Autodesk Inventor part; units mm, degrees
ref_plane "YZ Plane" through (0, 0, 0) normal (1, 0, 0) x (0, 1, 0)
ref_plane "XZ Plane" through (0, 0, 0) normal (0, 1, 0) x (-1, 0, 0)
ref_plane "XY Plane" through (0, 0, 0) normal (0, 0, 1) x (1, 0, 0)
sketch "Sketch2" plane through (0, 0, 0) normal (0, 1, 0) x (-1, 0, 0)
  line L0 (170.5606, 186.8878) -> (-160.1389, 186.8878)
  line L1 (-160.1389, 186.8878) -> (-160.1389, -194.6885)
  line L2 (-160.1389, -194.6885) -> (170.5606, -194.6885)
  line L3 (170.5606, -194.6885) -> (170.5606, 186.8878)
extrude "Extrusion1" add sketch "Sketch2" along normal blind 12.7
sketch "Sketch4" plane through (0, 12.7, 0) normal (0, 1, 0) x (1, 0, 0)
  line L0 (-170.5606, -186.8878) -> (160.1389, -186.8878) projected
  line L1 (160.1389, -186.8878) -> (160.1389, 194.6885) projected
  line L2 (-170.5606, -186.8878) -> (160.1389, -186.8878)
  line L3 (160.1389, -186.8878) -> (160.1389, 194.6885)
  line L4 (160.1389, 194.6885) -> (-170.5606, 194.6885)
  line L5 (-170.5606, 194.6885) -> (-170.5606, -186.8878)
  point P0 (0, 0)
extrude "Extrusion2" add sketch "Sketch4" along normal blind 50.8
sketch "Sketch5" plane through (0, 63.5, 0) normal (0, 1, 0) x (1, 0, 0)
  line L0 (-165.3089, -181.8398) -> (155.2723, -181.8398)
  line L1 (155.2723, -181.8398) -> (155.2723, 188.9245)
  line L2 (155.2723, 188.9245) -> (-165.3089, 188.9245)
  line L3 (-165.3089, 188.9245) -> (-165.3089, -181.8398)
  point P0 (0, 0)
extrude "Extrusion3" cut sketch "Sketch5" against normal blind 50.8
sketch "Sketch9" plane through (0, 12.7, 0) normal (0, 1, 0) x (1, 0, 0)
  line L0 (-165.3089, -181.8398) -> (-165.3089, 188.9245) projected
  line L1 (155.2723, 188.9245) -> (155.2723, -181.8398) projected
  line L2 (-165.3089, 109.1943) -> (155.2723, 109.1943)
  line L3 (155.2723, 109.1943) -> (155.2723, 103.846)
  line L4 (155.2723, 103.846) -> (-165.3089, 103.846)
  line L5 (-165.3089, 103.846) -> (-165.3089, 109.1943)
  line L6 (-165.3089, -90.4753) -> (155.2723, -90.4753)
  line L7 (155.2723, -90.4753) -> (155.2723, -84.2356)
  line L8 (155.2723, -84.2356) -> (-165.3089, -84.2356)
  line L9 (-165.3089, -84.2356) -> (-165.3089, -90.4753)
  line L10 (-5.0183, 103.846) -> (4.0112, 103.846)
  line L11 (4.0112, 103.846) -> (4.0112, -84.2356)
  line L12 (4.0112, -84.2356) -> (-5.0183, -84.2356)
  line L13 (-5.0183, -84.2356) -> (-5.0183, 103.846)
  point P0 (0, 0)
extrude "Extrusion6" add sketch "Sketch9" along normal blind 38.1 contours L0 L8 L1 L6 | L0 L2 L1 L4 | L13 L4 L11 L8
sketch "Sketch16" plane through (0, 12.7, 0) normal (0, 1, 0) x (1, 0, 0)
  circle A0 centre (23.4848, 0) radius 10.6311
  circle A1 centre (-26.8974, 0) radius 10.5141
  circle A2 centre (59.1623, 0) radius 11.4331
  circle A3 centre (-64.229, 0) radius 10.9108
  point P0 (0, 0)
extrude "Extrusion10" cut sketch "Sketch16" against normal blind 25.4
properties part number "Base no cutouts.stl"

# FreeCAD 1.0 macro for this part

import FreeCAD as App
import Part
import Sketcher
from FreeCAD import Vector
Q = App.Units.Quantity


def add_polygon(sketch, points):
    """Adds a closed chain of lines whose ends are joined by coincident constraints."""
    first, n = sketch.GeometryCount, len(points)
    for a, b in zip(points, points[1:] + points[:1]):
        sketch.addGeometry(Part.LineSegment(App.Vector(*a, 0), App.Vector(*b, 0)), False)
    for i in range(n):
        sketch.addConstraint(Sketcher.Constraint("Coincident", first + i, 2, first + (i + 1) % n, 1))

doc = App.newDocument("Part")
params = doc.addObject("Spreadsheet::Sheet", "Params")
for row, (alias, value) in enumerate([
    ("pad1_length", "0.5 in"),
    ("pad2_length", "2 in"),
    ("pocket1_length", "2 in"),
    ("pad3_length", "1.5 in"),
    ("pocket2_length", "1 in"),
], start=1):
    params.set(f"A{row}", alias)
    params.set(f"B{row}", "=" + value)
    params.setAlias(f"B{row}", alias)

body = doc.addObject("PartDesign::Body", "Body")

sketch1 = doc.addObject("Sketcher::SketchObject", "Sketch")
body.addObject(sketch1)
sketch1.AttachmentSupport = (doc.XZ_Plane, [""])
sketch1.MapMode = "FlatFace"
add_polygon(sketch1, [(-170.5606, -194.6885), (-170.5606, 186.8878), (160.1389, 186.8878), (160.1389, -194.6885)])
sketch1.addConstraint(Sketcher.Constraint("Vertical", 0))
sketch1.addConstraint(Sketcher.Constraint("Horizontal", 1))
sketch1.addConstraint(Sketcher.Constraint("Vertical", 2))
sketch1.addConstraint(Sketcher.Constraint("Horizontal", 3))
sketch1.addConstraint(Sketcher.Constraint("DistanceY", 0, 1, 0, 2, Q("15.0227 in")))
sketch1.addConstraint(Sketcher.Constraint("DistanceX", 1, 1, 1, 2, 330.6995))
sketch1.addConstraint(Sketcher.Constraint("DistanceY", 2, 2, -1, 1, Q("7.6649 in")))
sketch1.addConstraint(Sketcher.Constraint("DistanceX", 0, 2, -1, 1, 170.5606))
pad1 = doc.addObject("PartDesign::Pad", "Pad")
body.addObject(pad1)
pad1.Profile = sketch1
pad1.setExpression("Length", "Params.pad1_length")
pad1.Reversed = True

sketch2 = doc.addObject("Sketcher::SketchObject", "Sketch001")
body.addObject(sketch2)
sketch2.AttachmentSupport = (doc.XZ_Plane, [""])
sketch2.MapMode = "FlatFace"
sketch2.AttachmentOffset = App.Placement(Vector(0, 0, -0.5 * 25.4), App.Rotation())
add_polygon(sketch2, [(-170.5606, -194.6885), (-170.5606, 186.8878), (160.1389, 186.8878), (160.1389, -194.6885)])
sketch2.addConstraint(Sketcher.Constraint("Vertical", 0))
sketch2.addConstraint(Sketcher.Constraint("Horizontal", 1))
sketch2.addConstraint(Sketcher.Constraint("Vertical", 2))
sketch2.addConstraint(Sketcher.Constraint("Horizontal", 3))
sketch2.addConstraint(Sketcher.Constraint("DistanceY", 0, 1, 0, 2, Q("15.0227 in")))
sketch2.addConstraint(Sketcher.Constraint("DistanceX", 1, 1, 1, 2, 330.6995))
sketch2.addConstraint(Sketcher.Constraint("DistanceY", 2, 2, -1, 1, Q("7.6649 in")))
sketch2.addConstraint(Sketcher.Constraint("DistanceX", 0, 2, -1, 1, 170.5606))
pad2 = doc.addObject("PartDesign::Pad", "Pad001")
body.addObject(pad2)
pad2.Profile = sketch2
pad2.setExpression("Length", "Params.pad2_length")
pad2.Reversed = True

sketch3 = doc.addObject("Sketcher::SketchObject", "Sketch002")
body.addObject(sketch3)
sketch3.AttachmentSupport = (doc.XZ_Plane, [""])
sketch3.MapMode = "FlatFace"
sketch3.AttachmentOffset = App.Placement(Vector(0, 0, -2.5 * 25.4), App.Rotation())
add_polygon(sketch3, [(-165.3089, -188.9245), (-165.3089, 181.8398), (155.2723, 181.8398), (155.2723, -188.9245)])
sketch3.addConstraint(Sketcher.Constraint("Vertical", 0))
sketch3.addConstraint(Sketcher.Constraint("Horizontal", 1))
sketch3.addConstraint(Sketcher.Constraint("Vertical", 2))
sketch3.addConstraint(Sketcher.Constraint("Horizontal", 3))
sketch3.addConstraint(Sketcher.Constraint("DistanceX", 1, 1, 1, 2, Q("12.6213 in")))
sketch3.addConstraint(Sketcher.Constraint("DistanceY", 0, 1, 0, 2, 370.7643))
sketch3.addConstraint(Sketcher.Constraint("DistanceX", 0, 2, -1, 1, 165.309))
sketch3.addConstraint(Sketcher.Constraint("DistanceY", -1, 1, 0, 2, 181.8398))
pocket1 = doc.addObject("PartDesign::Pocket", "Pocket")
body.addObject(pocket1)
pocket1.Profile = sketch3
pocket1.setExpression("Length", "Params.pocket1_length")
pocket1.Reversed = True

sketch4 = doc.addObject("Sketcher::SketchObject", "Sketch003")
body.addObject(sketch4)
sketch4.AttachmentSupport = (doc.XZ_Plane, [""])
sketch4.MapMode = "FlatFace"
sketch4.AttachmentOffset = App.Placement(Vector(0, 0, -0.5 * 25.4), App.Rotation())
add_polygon(sketch4, [(-165.3089, 84.2356), (-165.3089, 90.4753), (155.2723, 90.4753), (155.2723, 84.2356), (4.0112, 84.2356), (4.0112, -103.846), (155.2723, -103.846), (155.2723, -109.1943), (-165.3089, -109.1943), (-165.3089, -103.846), (-5.0183, -103.846), (-5.0183, 84.2356)])
sketch4.addConstraint(Sketcher.Constraint("Vertical", 0))
sketch4.addConstraint(Sketcher.Constraint("Horizontal", 1))
sketch4.addConstraint(Sketcher.Constraint("Vertical", 2))
sketch4.addConstraint(Sketcher.Constraint("Horizontal", 3))
sketch4.addConstraint(Sketcher.Constraint("Vertical", 4))
sketch4.addConstraint(Sketcher.Constraint("Horizontal", 5))
sketch4.addConstraint(Sketcher.Constraint("Vertical", 6))
sketch4.addConstraint(Sketcher.Constraint("Horizontal", 7))
sketch4.addConstraint(Sketcher.Constraint("Vertical", 8))
sketch4.addConstraint(Sketcher.Constraint("Horizontal", 9))
sketch4.addConstraint(Sketcher.Constraint("Vertical", 10))
sketch4.addConstraint(Sketcher.Constraint("Horizontal", 11))
sketch4.addConstraint(Sketcher.Constraint("Horizontal", 5, 2, 8, 2))
sketch4.addConstraint(Sketcher.Constraint("Horizontal", 3, 2, 10, 2))
sketch4.addConstraint(Sketcher.Constraint("Vertical", 2, 2, 5, 2))
sketch4.addConstraint(Sketcher.Constraint("Vertical", 0, 2, 7, 2))
sketch4.addConstraint(Sketcher.Constraint("DistanceX", 1, 1, 1, 2, Q("12.6213 in")))
sketch4.addConstraint(Sketcher.Constraint("DistanceY", 6, 2, -1, 1, Q("4.299 in")))
sketch4.addConstraint(Sketcher.Constraint("DistanceY", 6, 2, 1, 2, Q("7.861 in")))
sketch4.addConstraint(Sketcher.Constraint("DistanceX", 3, 2, 3, 1, 151.261))
sketch4.addConstraint(Sketcher.Constraint("DistanceX", 9, 1, 9, 2, 160.2906))
sketch4.addConstraint(Sketcher.Constraint("DistanceY", 0, 1, 0, 2, 6.2397))
sketch4.addConstraint(Sketcher.Constraint("DistanceY", 4, 2, 4, 1, 188.0816))
sketch4.addConstraint(Sketcher.Constraint("DistanceX", 0, 2, -1, 1, 165.309))
pad3 = doc.addObject("PartDesign::Pad", "Pad002")
body.addObject(pad3)
pad3.Profile = sketch4
pad3.setExpression("Length", "Params.pad3_length")
pad3.Reversed = True

sketch5 = doc.addObject("Sketcher::SketchObject", "Sketch004")
body.addObject(sketch5)
sketch5.AttachmentSupport = (doc.XZ_Plane, [""])
sketch5.MapMode = "FlatFace"
sketch5.AttachmentOffset = App.Placement(Vector(0, 0, -0.5 * 25.4), App.Rotation())
sketch5.addGeometry(Part.Circle(Vector(23.4848, 0, 0), Vector(0, 0, 1), 10.6311), False)
sketch5.addGeometry(Part.Circle(Vector(-26.8974, 0, 0), Vector(0, 0, 1), 10.5141), False)
sketch5.addGeometry(Part.Circle(Vector(59.1623, 0, 0), Vector(0, 0, 1), 11.4331), False)
sketch5.addGeometry(Part.Circle(Vector(-64.229, 0, 0), Vector(0, 0, 1), 10.9108), False)
sketch5.addConstraint(Sketcher.Constraint("PointOnObject", 0, 3, -1))
sketch5.addConstraint(Sketcher.Constraint("PointOnObject", 1, 3, -1))
sketch5.addConstraint(Sketcher.Constraint("PointOnObject", 2, 3, -1))
sketch5.addConstraint(Sketcher.Constraint("PointOnObject", 3, 3, -1))
sketch5.addConstraint(Sketcher.Constraint("Diameter", 0, Q("0.8371 in")))
sketch5.addConstraint(Sketcher.Constraint("Diameter", 1, 21.0282))
sketch5.addConstraint(Sketcher.Constraint("Diameter", 2, 22.8662))
sketch5.addConstraint(Sketcher.Constraint("Diameter", 3, 21.8216))
sketch5.addConstraint(Sketcher.Constraint("DistanceX", -1, 1, 0, 3, Q("0.9246 in")))
sketch5.addConstraint(Sketcher.Constraint("DistanceX", 3, 3, -1, 1, Q("2.5287 in")))
sketch5.addConstraint(Sketcher.Constraint("DistanceX", 1, 3, -1, 1, 26.8974))
sketch5.addConstraint(Sketcher.Constraint("DistanceX", -1, 1, 2, 3, 59.1623))
pocket2 = doc.addObject("PartDesign::Pocket", "Pocket001")
body.addObject(pocket2)
pocket2.Profile = sketch5
pocket2.setExpression("Length", "Params.pocket2_length")
pocket2.Reversed = True

doc.recompute()
